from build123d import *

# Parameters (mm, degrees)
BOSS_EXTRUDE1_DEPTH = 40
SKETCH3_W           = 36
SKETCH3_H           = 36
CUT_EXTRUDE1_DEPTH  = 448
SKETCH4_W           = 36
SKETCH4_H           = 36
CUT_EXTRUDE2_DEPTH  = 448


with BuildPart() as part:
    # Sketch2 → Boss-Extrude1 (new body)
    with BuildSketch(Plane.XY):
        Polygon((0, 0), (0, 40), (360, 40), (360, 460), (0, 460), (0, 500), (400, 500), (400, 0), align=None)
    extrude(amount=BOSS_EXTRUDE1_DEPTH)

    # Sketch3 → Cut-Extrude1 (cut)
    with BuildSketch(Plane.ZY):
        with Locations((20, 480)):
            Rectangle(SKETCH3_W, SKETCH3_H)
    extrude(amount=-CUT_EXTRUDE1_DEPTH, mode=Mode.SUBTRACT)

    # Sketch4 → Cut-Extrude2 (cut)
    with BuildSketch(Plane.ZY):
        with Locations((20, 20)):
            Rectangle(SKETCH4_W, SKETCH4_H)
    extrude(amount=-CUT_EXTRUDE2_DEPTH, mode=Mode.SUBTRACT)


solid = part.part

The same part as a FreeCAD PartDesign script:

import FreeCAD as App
import Part
import Sketcher

V = App.Vector
Q = App.Units.Quantity

doc = App.newDocument("Part")
body = doc.addObject("PartDesign::Body", "Body")

# Sketch on XY plane
sketch1 = body.newObject("Sketcher::SketchObject", "Sketch")
sketch1.AttachmentSupport = (doc.getObject("XY_Plane"), [""])
sketch1.MapMode = "FlatFace"
sketch1.addGeometry([
    Part.LineSegment(V(0, 40, 0), V(0, 0, 0)),  # 0
    Part.LineSegment(V(0, 0, 0), V(400, 0, 0)),  # 1
    Part.LineSegment(V(400, 0, 0), V(400, 500, 0)),  # 2
    Part.LineSegment(V(400, 500, 0), V(0, 500, 0)),  # 3
    Part.LineSegment(V(0, 500, 0), V(0, 460, 0)),  # 4
    Part.LineSegment(V(0, 460, 0), V(360, 460, 0)),  # 5
    Part.LineSegment(V(360, 460, 0), V(360, 40, 0)),  # 6
    Part.LineSegment(V(360, 40, 0), V(0, 40, 0)),  # 7
], False)
sketch1.addConstraint([
    Sketcher.Constraint("Coincident", 0, 2, 1, 1),
    Sketcher.Constraint("Coincident", 1, 2, 2, 1),
    Sketcher.Constraint("Coincident", 2, 2, 3, 1),
    Sketcher.Constraint("Coincident", 3, 2, 4, 1),
    Sketcher.Constraint("Coincident", 4, 2, 5, 1),
    Sketcher.Constraint("Coincident", 5, 2, 6, 1),
    Sketcher.Constraint("Coincident", 6, 2, 7, 1),
    Sketcher.Constraint("Coincident", 7, 2, 0, 1),
    Sketcher.Constraint("Vertical", 0),
    Sketcher.Constraint("Horizontal", 1),
    Sketcher.Constraint("Vertical", 2),
    Sketcher.Constraint("Horizontal", 3),
    Sketcher.Constraint("Vertical", 4),
    Sketcher.Constraint("Horizontal", 5),
    Sketcher.Constraint("Vertical", 6),
    Sketcher.Constraint("Horizontal", 7),
    Sketcher.Constraint("Coincident", 0, 2, -1, 1),
    Sketcher.Constraint("PointOnObject", 3, 2, -2),
    Sketcher.Constraint("Equal", 0, 4),
    Sketcher.Constraint("DistanceX", 1, 1, 1, 2, Q("400 mm")),
    Sketcher.Constraint("DistanceX", 5, 1, 5, 2, Q("360 mm")),
    Sketcher.Constraint("DistanceY", 0, 2, 0, 1, Q("40 mm")),
    Sketcher.Constraint("DistanceY", 2, 1, 2, 2, Q("500 mm")),
])
pad1 = body.newObject("PartDesign::Pad", "Pad")
pad1.Profile = sketch1
pad1.Length = 40

# Sketch on YZ plane
sketch2 = body.newObject("Sketcher::SketchObject", "Sketch001")
sketch2.AttachmentSupport = (doc.getObject("YZ_Plane"), [""])
sketch2.MapMode = "FlatFace"
sketch2.addGeometry([
    Part.LineSegment(V(498, 2, 0), V(462, 2, 0)),
    Part.LineSegment(V(462, 2, 0), V(462, 38, 0)),
    Part.LineSegment(V(462, 38, 0), V(498, 38, 0)),
    Part.LineSegment(V(498, 38, 0), V(498, 2, 0)),
], False)
sketch2.addConstraint([
    Sketcher.Constraint("Coincident", 0, 2, 1, 1),
    Sketcher.Constraint("Coincident", 1, 2, 2, 1),
    Sketcher.Constraint("Coincident", 2, 2, 3, 1),
    Sketcher.Constraint("Coincident", 3, 2, 0, 1),
    Sketcher.Constraint("Horizontal", 0),
    Sketcher.Constraint("Vertical", 1),
    Sketcher.Constraint("Horizontal", 2),
    Sketcher.Constraint("Vertical", 3),
    Sketcher.Constraint("Equal", 2, 1),
    Sketcher.Constraint("DistanceX", 0, 2, 0, 1, Q("36 mm")),
    Sketcher.Constraint("DistanceX", -1, 1, 0, 2, Q("462 mm")),
    Sketcher.Constraint("DistanceY", -1, 1, 0, 2, Q("2 mm")),
])
pocket1 = body.newObject("PartDesign::Pocket", "Pocket")
pocket1.Profile = sketch2
pocket1.Length = 448
pocket1.Reversed = True

# Sketch on YZ plane
sketch3 = body.newObject("Sketcher::SketchObject", "Sketch002")
sketch3.AttachmentSupport = (doc.getObject("YZ_Plane"), [""])
sketch3.MapMode = "FlatFace"
sketch3.addGeometry([
    Part.LineSegment(V(38, 2, 0), V(2, 2, 0)),
    Part.LineSegment(V(2, 2, 0), V(2, 38, 0)),
    Part.LineSegment(V(2, 38, 0), V(38, 38, 0)),
    Part.LineSegment(V(38, 38, 0), V(38, 2, 0)),
], False)
sketch3.addConstraint([
    Sketcher.Constraint("Coincident", 0, 2, 1, 1),
    Sketcher.Constraint("Coincident", 1, 2, 2, 1),
    Sketcher.Constraint("Coincident", 2, 2, 3, 1),
    Sketcher.Constraint("Coincident", 3, 2, 0, 1),
    Sketcher.Constraint("Horizontal", 0),
    Sketcher.Constraint("Vertical", 1),
    Sketcher.Constraint("Horizontal", 2),
    Sketcher.Constraint("Vertical", 3),
    Sketcher.Constraint("Equal", 2, 1),
    Sketcher.Constraint("DistanceX", 0, 2, 0, 1, Q("36 mm")),
    Sketcher.Constraint("DistanceX", -1, 1, 0, 2, Q("2 mm")),
    Sketcher.Constraint("DistanceY", -1, 1, 0, 2, Q("2 mm")),
])
pocket2 = body.newObject("PartDesign::Pocket", "Pocket001")
pocket2.Profile = sketch3
pocket2.Length = 448
pocket2.Reversed = True

doc.recompute()
